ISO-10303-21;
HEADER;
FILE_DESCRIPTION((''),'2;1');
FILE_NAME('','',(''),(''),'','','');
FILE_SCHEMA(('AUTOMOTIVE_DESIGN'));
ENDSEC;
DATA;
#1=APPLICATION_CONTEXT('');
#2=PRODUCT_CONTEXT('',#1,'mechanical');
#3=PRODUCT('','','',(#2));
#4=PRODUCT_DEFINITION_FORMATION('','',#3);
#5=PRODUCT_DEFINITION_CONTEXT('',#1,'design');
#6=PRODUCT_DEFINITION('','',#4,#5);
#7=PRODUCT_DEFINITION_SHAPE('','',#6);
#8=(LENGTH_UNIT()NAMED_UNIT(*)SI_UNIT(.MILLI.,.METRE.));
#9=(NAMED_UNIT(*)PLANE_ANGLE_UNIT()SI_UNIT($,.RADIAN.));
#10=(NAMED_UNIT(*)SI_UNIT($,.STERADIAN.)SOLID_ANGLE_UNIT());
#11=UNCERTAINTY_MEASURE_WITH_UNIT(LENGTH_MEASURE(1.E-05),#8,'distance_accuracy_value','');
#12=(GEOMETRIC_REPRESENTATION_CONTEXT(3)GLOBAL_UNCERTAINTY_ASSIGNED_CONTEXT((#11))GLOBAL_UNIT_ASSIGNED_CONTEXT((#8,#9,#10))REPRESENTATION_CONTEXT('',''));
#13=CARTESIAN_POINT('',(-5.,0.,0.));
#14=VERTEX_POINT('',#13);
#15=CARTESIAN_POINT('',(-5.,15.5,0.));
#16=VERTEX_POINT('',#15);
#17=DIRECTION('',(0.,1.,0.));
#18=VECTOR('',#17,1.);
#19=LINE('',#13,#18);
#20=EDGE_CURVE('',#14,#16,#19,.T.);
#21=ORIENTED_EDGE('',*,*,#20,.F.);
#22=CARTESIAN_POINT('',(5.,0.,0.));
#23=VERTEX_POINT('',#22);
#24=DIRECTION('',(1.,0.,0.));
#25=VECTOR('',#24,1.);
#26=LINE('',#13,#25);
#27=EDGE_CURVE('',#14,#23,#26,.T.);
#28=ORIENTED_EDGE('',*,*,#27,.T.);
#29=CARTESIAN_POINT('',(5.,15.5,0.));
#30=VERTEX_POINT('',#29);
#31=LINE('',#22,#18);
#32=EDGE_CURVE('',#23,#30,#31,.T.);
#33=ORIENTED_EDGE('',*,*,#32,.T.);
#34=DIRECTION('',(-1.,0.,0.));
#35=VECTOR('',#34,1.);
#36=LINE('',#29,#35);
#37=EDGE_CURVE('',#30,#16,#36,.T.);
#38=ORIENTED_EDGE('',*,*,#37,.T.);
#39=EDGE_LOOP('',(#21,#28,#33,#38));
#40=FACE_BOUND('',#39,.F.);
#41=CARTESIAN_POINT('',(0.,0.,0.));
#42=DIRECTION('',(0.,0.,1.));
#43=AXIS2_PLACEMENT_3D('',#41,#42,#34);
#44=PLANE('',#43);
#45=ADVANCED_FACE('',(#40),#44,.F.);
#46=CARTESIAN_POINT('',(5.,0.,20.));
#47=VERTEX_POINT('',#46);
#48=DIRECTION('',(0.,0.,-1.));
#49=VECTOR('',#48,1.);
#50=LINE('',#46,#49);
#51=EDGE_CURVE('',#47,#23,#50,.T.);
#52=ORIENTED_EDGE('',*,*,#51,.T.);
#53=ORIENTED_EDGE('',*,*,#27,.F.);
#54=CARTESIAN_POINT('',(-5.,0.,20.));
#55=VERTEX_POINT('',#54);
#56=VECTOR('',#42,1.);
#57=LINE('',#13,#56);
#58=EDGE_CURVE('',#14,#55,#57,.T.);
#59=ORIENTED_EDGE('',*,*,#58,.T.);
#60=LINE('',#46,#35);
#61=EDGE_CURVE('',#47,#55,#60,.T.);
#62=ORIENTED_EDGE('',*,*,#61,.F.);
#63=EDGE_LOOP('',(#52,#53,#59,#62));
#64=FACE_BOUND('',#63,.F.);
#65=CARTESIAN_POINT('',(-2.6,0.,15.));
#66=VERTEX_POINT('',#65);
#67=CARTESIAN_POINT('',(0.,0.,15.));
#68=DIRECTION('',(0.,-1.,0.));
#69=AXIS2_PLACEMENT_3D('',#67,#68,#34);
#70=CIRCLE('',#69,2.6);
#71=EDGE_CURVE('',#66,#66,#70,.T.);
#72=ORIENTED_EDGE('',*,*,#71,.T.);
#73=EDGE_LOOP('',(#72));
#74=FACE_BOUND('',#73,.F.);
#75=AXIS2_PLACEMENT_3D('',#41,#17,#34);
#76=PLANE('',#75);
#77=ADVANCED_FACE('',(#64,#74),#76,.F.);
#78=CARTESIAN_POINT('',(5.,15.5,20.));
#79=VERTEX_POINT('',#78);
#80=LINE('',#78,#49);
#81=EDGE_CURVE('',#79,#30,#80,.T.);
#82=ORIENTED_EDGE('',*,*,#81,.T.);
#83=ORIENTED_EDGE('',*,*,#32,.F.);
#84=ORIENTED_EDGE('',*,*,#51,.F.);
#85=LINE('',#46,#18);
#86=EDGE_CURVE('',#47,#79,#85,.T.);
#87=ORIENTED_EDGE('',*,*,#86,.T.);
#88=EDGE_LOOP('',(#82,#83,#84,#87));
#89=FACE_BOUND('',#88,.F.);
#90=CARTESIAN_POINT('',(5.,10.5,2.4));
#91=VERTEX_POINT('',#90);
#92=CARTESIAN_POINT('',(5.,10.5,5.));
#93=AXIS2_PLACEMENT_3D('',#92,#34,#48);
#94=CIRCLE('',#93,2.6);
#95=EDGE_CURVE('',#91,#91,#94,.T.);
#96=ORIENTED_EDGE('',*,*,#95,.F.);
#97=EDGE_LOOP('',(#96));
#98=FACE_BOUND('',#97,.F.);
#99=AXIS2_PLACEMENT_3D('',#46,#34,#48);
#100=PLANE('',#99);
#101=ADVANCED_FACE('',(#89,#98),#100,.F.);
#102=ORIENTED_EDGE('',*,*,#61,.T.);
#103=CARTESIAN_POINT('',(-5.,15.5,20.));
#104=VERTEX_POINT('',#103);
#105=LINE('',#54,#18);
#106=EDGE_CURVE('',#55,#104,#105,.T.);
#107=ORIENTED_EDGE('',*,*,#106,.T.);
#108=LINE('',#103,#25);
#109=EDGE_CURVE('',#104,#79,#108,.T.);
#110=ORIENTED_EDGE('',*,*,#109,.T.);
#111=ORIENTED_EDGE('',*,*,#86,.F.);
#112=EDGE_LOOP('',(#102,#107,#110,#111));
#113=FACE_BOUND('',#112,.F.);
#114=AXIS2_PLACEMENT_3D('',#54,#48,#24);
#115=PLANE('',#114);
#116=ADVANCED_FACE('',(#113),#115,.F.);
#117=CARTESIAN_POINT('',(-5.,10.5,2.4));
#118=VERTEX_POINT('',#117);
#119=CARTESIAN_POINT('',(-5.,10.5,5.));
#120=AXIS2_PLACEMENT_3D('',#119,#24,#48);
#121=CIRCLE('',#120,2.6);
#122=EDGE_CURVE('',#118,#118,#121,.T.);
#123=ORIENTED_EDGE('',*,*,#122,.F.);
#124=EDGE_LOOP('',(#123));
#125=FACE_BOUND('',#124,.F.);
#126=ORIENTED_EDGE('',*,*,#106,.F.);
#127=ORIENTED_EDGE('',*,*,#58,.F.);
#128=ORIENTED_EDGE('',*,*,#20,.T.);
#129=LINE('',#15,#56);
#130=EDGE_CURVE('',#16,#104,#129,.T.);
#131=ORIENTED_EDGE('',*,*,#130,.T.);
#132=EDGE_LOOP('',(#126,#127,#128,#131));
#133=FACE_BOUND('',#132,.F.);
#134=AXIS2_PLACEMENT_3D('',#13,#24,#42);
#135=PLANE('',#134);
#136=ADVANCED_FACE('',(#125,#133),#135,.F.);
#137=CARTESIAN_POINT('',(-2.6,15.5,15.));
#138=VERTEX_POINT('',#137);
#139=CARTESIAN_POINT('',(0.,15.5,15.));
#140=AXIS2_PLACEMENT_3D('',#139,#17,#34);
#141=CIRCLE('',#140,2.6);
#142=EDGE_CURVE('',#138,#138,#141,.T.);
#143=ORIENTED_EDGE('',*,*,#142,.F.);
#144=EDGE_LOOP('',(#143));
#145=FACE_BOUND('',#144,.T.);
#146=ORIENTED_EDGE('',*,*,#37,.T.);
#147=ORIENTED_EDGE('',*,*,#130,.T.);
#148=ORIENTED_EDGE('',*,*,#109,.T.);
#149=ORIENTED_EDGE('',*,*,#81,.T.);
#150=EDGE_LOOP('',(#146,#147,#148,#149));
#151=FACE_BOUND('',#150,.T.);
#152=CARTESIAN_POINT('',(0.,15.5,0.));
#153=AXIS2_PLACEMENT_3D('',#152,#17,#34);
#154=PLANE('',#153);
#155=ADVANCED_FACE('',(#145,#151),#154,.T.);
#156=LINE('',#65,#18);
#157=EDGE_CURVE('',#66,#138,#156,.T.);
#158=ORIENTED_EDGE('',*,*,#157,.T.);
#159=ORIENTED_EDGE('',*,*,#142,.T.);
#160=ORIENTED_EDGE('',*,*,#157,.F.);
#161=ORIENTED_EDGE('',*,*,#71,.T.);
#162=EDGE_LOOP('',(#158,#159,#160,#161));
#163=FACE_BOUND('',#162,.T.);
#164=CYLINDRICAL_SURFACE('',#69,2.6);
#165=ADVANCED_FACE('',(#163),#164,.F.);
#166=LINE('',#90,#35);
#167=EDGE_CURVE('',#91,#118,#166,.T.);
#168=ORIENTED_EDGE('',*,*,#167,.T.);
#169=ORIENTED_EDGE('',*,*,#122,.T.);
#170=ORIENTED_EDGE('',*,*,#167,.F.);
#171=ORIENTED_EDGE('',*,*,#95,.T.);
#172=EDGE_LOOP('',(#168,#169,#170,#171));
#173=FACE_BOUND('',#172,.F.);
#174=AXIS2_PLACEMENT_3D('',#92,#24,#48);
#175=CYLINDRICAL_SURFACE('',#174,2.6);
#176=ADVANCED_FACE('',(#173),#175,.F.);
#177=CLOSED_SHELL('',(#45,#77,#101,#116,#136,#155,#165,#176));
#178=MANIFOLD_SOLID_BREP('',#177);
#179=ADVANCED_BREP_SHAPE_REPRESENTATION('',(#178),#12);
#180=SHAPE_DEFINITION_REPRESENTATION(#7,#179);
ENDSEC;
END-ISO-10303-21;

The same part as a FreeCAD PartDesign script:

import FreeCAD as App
import Part
import Sketcher

V = App.Vector


def add_polygon(sketch, points):
    """Adds a closed chain of lines whose ends are joined by coincident constraints."""
    first, n = sketch.GeometryCount, len(points)
    for a, b in zip(points, points[1:] + points[:1]):
        sketch.addGeometry(Part.LineSegment(App.Vector(*a, 0), App.Vector(*b, 0)), False)
    for i in range(n):
        sketch.addConstraint(Sketcher.Constraint("Coincident", first + i, 2, first + (i + 1) % n, 1))

doc = App.newDocument("Part")
params = doc.addObject("Spreadsheet::Sheet", "Params")
for row, (alias, value) in enumerate([
    ("sketch1_diameter", "5.2 mm"),
    ("sketch1_width", "10 mm"),
    ("sketch1_height", "20 mm"),
    ("pad1_length", "15.5 mm"),
    ("sketch2_diameter", "5.2 mm"),
    ("pocket1_length", "15.5 mm"),
], start=1):
    params.set(f"A{row}", alias)
    params.set(f"B{row}", "=" + value)
    params.setAlias(f"B{row}", alias)

body = doc.addObject("PartDesign::Body", "Body")

# Sketch on XZ plane
sketch1 = doc.addObject("Sketcher::SketchObject", "Sketch")
body.addObject(sketch1)
sketch1.AttachmentSupport = (doc.XZ_Plane, [""])
sketch1.MapMode = "FlatFace"
add_polygon(sketch1, [(-5, 20), (5, 20), (5, 0), (-5, 0)])  # lines 0-3
sketch1.addGeometry(Part.Circle(V(0, 15, 0), V(0, 0, 1), 2.6), False)  # 4
sketch1.addConstraint(Sketcher.Constraint("Horizontal", 0))
sketch1.addConstraint(Sketcher.Constraint("Vertical", 1))
sketch1.addConstraint(Sketcher.Constraint("Horizontal", 2))
sketch1.addConstraint(Sketcher.Constraint("Vertical", 3))
sketch1.addConstraint(Sketcher.Constraint("Symmetric", 1, 2, 2, 2, -1, 1))
sketch1.addConstraint(Sketcher.Constraint("PointOnObject", 4, 3, -2))
sketch1.addConstraint(Sketcher.Constraint("Diameter", 4, 5.2))
sketch1.addConstraint(Sketcher.Constraint("DistanceX", 0, 1, 0, 2, 10.0))
sketch1.addConstraint(Sketcher.Constraint("DistanceY", 4, 3, 0, 2, 5.0))
sketch1.addConstraint(Sketcher.Constraint("DistanceY", 1, 2, 1, 1, 20.0))
sketch1.setExpression("Constraints[10]", "Params.sketch1_diameter")
sketch1.setExpression("Constraints[11]", "Params.sketch1_width")
sketch1.setExpression("Constraints[13]", "Params.sketch1_height")
pad1 = doc.addObject("PartDesign::Pad", "Pad")
body.addObject(pad1)
pad1.Profile = sketch1
pad1.setExpression("Length", "Params.pad1_length")
pad1.Reversed = True

# Sketch on YZ plane
sketch2 = doc.addObject("Sketcher::SketchObject", "Sketch001")
body.addObject(sketch2)
sketch2.AttachmentSupport = (doc.YZ_Plane, [""])
sketch2.MapMode = "FlatFace"
sketch2.AttachmentOffset = App.Placement(V(0, 0, 5), App.Rotation())
sketch2.addGeometry(Part.Circle(V(10.5, 5, 0), V(0, 0, 1), 2.6), False)
sketch2.addConstraint(Sketcher.Constraint("Diameter", 0, 5.2))
sketch2.addConstraint(Sketcher.Constraint("DistanceY", -1, 1, 0, 3, 5.0))
sketch2.addConstraint(Sketcher.Constraint("DistanceX", -1, 1, 0, 3, 10.5))
sketch2.setExpression("Constraints[0]", "Params.sketch2_diameter")
pocket1 = doc.addObject("PartDesign::Pocket", "Pocket")
body.addObject(pocket1)
pocket1.Profile = sketch2
pocket1.setExpression("Length", "Params.pocket1_length")

doc.recompute()
